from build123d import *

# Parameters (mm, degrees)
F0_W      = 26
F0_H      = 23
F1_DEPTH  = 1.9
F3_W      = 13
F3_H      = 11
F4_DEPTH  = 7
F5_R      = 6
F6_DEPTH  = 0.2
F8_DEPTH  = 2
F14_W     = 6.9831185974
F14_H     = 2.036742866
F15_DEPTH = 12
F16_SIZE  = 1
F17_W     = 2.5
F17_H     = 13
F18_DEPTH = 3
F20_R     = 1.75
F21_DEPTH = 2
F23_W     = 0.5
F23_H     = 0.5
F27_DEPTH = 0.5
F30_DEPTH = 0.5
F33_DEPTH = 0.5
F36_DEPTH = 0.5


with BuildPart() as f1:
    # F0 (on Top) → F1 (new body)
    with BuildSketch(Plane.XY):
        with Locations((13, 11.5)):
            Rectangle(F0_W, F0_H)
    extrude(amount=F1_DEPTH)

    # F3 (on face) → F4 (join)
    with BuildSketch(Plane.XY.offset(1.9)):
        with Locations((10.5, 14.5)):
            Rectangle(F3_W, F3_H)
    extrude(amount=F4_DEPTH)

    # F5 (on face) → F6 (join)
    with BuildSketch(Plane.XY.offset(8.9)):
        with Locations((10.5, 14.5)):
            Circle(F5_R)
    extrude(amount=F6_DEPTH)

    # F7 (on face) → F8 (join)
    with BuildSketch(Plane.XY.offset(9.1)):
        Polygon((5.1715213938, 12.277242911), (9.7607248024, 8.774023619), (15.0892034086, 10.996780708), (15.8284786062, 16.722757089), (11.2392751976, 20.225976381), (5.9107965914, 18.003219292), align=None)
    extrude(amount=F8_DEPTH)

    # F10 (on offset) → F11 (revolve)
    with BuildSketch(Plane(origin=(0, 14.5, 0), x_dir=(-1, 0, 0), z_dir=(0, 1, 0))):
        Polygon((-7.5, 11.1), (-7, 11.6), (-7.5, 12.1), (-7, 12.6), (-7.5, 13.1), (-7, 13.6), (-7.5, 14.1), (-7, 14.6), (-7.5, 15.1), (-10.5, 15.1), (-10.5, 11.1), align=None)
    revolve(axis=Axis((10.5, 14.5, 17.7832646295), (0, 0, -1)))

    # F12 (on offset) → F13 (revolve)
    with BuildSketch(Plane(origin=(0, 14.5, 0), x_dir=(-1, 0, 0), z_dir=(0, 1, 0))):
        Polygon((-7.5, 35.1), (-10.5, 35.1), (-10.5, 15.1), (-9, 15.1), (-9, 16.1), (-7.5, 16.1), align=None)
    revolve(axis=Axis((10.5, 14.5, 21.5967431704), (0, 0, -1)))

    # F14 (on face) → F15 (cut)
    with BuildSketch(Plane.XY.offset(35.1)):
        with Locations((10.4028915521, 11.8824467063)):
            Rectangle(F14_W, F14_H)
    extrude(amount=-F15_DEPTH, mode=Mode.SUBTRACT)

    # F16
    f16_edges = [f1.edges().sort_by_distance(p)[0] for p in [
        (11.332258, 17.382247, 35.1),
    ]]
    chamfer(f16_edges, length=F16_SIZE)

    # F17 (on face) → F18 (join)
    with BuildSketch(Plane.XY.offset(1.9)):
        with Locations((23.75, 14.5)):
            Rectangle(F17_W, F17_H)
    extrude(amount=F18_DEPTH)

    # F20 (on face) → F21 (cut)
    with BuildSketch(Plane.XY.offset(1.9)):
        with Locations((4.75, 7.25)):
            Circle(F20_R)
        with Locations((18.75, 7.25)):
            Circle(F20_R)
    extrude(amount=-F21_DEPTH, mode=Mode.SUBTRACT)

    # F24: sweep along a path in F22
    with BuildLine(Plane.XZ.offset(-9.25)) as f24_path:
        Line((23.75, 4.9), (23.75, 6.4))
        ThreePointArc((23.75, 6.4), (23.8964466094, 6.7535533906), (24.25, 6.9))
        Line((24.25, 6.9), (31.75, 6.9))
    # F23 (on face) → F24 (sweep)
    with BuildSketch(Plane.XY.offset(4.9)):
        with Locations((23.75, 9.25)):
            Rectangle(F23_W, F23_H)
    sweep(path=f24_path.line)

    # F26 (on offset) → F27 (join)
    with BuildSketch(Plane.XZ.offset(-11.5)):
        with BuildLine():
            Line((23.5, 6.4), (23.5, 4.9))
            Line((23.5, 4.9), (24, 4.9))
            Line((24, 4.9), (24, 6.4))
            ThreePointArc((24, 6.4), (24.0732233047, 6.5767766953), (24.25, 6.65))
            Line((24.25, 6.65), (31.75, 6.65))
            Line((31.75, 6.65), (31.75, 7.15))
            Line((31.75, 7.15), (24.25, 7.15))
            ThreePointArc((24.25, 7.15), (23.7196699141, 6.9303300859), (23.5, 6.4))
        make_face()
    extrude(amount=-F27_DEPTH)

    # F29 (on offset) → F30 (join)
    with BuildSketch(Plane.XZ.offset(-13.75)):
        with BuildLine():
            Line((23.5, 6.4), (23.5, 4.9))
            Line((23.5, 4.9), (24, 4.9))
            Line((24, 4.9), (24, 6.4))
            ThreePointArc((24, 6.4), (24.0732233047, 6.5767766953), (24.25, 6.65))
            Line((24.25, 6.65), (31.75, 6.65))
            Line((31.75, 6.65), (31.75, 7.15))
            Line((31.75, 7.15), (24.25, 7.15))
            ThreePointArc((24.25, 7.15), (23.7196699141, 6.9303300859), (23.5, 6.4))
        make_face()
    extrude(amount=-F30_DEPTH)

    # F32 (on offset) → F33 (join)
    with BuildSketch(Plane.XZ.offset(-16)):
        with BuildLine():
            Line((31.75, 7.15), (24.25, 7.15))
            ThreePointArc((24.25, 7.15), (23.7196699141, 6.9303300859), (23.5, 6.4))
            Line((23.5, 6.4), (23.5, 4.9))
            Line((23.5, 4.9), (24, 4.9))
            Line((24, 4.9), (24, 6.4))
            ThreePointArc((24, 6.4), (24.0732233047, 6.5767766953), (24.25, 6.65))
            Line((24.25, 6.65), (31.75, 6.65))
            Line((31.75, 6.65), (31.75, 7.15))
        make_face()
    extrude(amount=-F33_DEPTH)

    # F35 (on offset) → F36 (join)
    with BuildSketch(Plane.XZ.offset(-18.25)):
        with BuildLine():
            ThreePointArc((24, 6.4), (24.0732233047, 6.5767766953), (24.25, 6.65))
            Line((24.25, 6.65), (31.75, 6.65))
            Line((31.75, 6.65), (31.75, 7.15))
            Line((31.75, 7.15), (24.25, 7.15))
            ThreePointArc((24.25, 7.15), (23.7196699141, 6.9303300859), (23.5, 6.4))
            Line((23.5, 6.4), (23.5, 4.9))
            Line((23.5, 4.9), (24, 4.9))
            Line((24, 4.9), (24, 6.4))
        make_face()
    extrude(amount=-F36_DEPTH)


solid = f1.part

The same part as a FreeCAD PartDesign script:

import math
import FreeCAD as App
import Part
import Sketcher
Q = App.Units.Quantity


def edges_at(feature, points):
    """Names of the edges that pass closest to the given points."""
    edges = feature.Shape.Edges
    near = lambda p: min(range(len(edges)), key=lambda i: edges[i].distToShape(Part.Vertex(*p))[0])
    return sorted({f"Edge{near(p) + 1}" for p in points})


def add_polygon(sketch, points):
    """Adds a closed chain of lines whose ends are joined by coincident constraints."""
    first, n = sketch.GeometryCount, len(points)
    for a, b in zip(points, points[1:] + points[:1]):
        sketch.addGeometry(Part.LineSegment(App.Vector(*a, 0), App.Vector(*b, 0)), False)
    for i in range(n):
        sketch.addConstraint(Sketcher.Constraint("Coincident", first + i, 2, first + (i + 1) % n, 1))

doc = App.newDocument("Part")
params = doc.addObject("Spreadsheet::Sheet", "Params")
for row, (alias, value) in enumerate([
    ("sketch1_width", "26 mm"),
    ("sketch1_height", "23 mm"),
    ("pad1_length", "1.9 mm"),
    ("sketch2_width", "13 mm"),
    ("sketch2_height", "11 mm"),
    ("pad2_length", "7 mm"),
    ("sketch3_diameter", "12 mm"),
    ("pad3_length", "0.2 mm"),
    ("pad4_length", "2 mm"),
    ("sketch5_width", "3 mm"),
    ("sketch5_height", "4 mm"),
    ("revolution_angle", "360 deg"),
    ("sketch6_width", "3 mm"),
    ("sketch6_height", "20 mm"),
    ("sketch6_height2", "1 mm"),
    ("revolution2_angle", "360 deg"),
    ("pocket1_length", "12 mm"),
    ("chamfer_size", "1 mm"),
    ("sketch8_height", "13 mm"),
    ("sketch8_width", "2.5 mm"),
    ("pad5_length", "3 mm"),
    ("sketch9_diameter", "3.5 mm"),
    ("pocket2_length", "2 mm"),
    ("sketch10_width", "0.5 mm"),
    ("sketch11_radius", "0.5 mm"),
    ("sketch11_width", "7.5 mm"),
    ("sketch11_height", "1.5 mm"),
    ("sketch12_radius", "0.25 mm"),
    ("sketch12_radius2", "0.75 mm"),
    ("sketch12_width", "7.5 mm"),
    ("sketch12_height", "1.5 mm"),
    ("pad6_length", "0.5 mm"),
    ("sketch13_radius", "0.25 mm"),
    ("sketch13_radius2", "0.75 mm"),
    ("sketch13_width", "7.5 mm"),
    ("sketch13_height", "1.5 mm"),
    ("pad7_length", "0.5 mm"),
    ("sketch14_radius", "0.75 mm"),
    ("sketch14_radius2", "0.25 mm"),
    ("sketch14_width", "7.5 mm"),
    ("sketch14_height", "1.5 mm"),
    ("pad8_length", "0.5 mm"),
    ("sketch15_radius", "0.25 mm"),
    ("sketch15_radius2", "0.75 mm"),
    ("sketch15_width", "7.5 mm"),
    ("sketch15_height", "1.5 mm"),
    ("pad9_length", "0.5 mm"),
], start=1):
    params.set(f"A{row}", alias)
    params.set(f"B{row}", "=" + value)
    params.setAlias(f"B{row}", alias)

body = doc.addObject("PartDesign::Body", "Body")

sketch1 = body.newObject("Sketcher::SketchObject", "Sketch")
sketch1.AttachmentSupport = (doc.getObject("XY_Plane"), [""])
sketch1.MapMode = "FlatFace"
add_polygon(sketch1, [(0, 23), (0, 0), (26, 0), (26, 23)])
sketch1.addConstraint([
    Sketcher.Constraint("Vertical", 0),
    Sketcher.Constraint("Horizontal", 1),
    Sketcher.Constraint("Vertical", 2),
    Sketcher.Constraint("Horizontal", 3),
    Sketcher.Constraint("Coincident", 0, 2, -1, 1),
    Sketcher.Constraint("DistanceX", 1, 1, 1, 2, Q("26 mm")),
    Sketcher.Constraint("DistanceY", 0, 2, 0, 1, Q("23 mm")),
])
sketch1.setExpression("Constraints[9]", "Params.sketch1_width")
sketch1.setExpression("Constraints[10]", "Params.sketch1_height")
pad1 = body.newObject("PartDesign::Pad", "Pad")
pad1.Profile = sketch1
pad1.setExpression("Length", "Params.pad1_length")

sketch2 = body.newObject("Sketcher::SketchObject", "Sketch001")
sketch2.AttachmentSupport = (doc.getObject("XY_Plane"), [""])
sketch2.MapMode = "FlatFace"
sketch2.AttachmentOffset = App.Placement(App.Vector(0, 0, 1.9), App.Rotation())
add_polygon(sketch2, [(4, 20), (4, 9), (17, 9), (17, 20)])
sketch2.addConstraint([
    Sketcher.Constraint("Vertical", 0),
    Sketcher.Constraint("Horizontal", 1),
    Sketcher.Constraint("Vertical", 2),
    Sketcher.Constraint("Horizontal", 3),
    Sketcher.Constraint("DistanceX", 1, 1, 1, 2, Q("13 mm")),
    Sketcher.Constraint("DistanceY", 0, 2, 0, 1, Q("11 mm")),
    Sketcher.Constraint("DistanceX", -1, 1, 0, 2, Q("4 mm")),
    Sketcher.Constraint("DistanceY", -1, 1, 0, 2, Q("9 mm")),
])
sketch2.setExpression("Constraints[8]", "Params.sketch2_width")
sketch2.setExpression("Constraints[9]", "Params.sketch2_height")
pad2 = body.newObject("PartDesign::Pad", "Pad001")
pad2.Profile = sketch2
pad2.setExpression("Length", "Params.pad2_length")

sketch3 = body.newObject("Sketcher::SketchObject", "Sketch002")
sketch3.AttachmentSupport = (doc.getObject("XY_Plane"), [""])
sketch3.MapMode = "FlatFace"
sketch3.AttachmentOffset = App.Placement(App.Vector(0, 0, 8.9), App.Rotation())
sketch3.addGeometry(Part.Circle(App.Vector(10, 14, 0), App.Vector(0, 0, 1), 6), False)
sketch3.addConstraint([
    Sketcher.Constraint("Diameter", 0, Q("12 mm")),
    Sketcher.Constraint("DistanceX", -1, 1, 0, 3, Q("10.5 mm")),
    Sketcher.Constraint("DistanceY", -1, 1, 0, 3, Q("14.5 mm")),
])
sketch3.setExpression("Constraints[0]", "Params.sketch3_diameter")
pad3 = body.newObject("PartDesign::Pad", "Pad002")
pad3.Profile = sketch3
pad3.setExpression("Length", "Params.pad3_length")

sketch4 = body.newObject("Sketcher::SketchObject", "Sketch003")
sketch4.AttachmentSupport = (doc.getObject("XY_Plane"), [""])
sketch4.MapMode = "FlatFace"
sketch4.AttachmentOffset = App.Placement(App.Vector(0, 0, 9.1), App.Rotation())
add_polygon(sketch4, [(5, 12), (10, 9), (15, 11), (16, 17), (11, 20), (6, 18)])
sketch4.addConstraint([
    Sketcher.Constraint("Parallel", 0, 3),
    Sketcher.Constraint("Parallel", 1, 4),
    Sketcher.Constraint("Parallel", 2, 5),
    Sketcher.Constraint("Equal", 0, 1),
    Sketcher.Constraint("Equal", 1, 2),
    Sketcher.Constraint("Equal", 2, 3),
    Sketcher.Constraint("DistanceY", -1, 1, 1, 2, Q("10.996781 mm")),
    Sketcher.Constraint("DistanceX", -1, 1, 2, 2, Q("15.828479 mm")),
    Sketcher.Constraint("DistanceY", -1, 1, 4, 2, Q("18.003219 mm")),
    Sketcher.Constraint("DistanceX", -1, 1, 5, 2, Q("5.171521 mm")),
    Sketcher.Constraint("DistanceX", 0, 2, 1, 2, Q("5.328479 mm")),
    Sketcher.Constraint("DistanceY", 2, 2, 3, 2, Q("3.503219 mm")),
])
pad4 = body.newObject("PartDesign::Pad", "Pad003")
pad4.Profile = sketch4
pad4.setExpression("Length", "Params.pad4_length")

sketch5 = body.newObject("Sketcher::SketchObject", "Sketch004")
sketch5.AttachmentSupport = (doc.getObject("XZ_Plane"), [""])
sketch5.MapMode = "FlatFace"
sketch5.AttachmentOffset = App.Placement(App.Vector(0, 0, -14.5), App.Rotation())
add_polygon(sketch5, [(7.5, 11.1), (7, 11.6), (7.5, 12.1), (7, 12.6), (7.5, 13.1), (7, 13.6), (7.5, 14.1), (7, 14.6), (7.5, 15.1), (10.5, 15.1), (10.5, 11.1)])
sketch5.addGeometry(Part.LineSegment(App.Vector(10.5, 15.1, 0), App.Vector(10.5, 11.1, 0)), True)
sketch5.addConstraint([
    Sketcher.Constraint("Horizontal", 8),
    Sketcher.Constraint("Vertical", 9),
    Sketcher.Constraint("Horizontal", 10),
    Sketcher.Constraint("Vertical", 11),
    Sketcher.Constraint("Coincident", 11, 1, 8, 2),
    Sketcher.Constraint("Perpendicular", 0, 1),
    Sketcher.Constraint("Perpendicular", 1, 2),
    Sketcher.Constraint("Perpendicular", 2, 3),
    Sketcher.Constraint("Perpendicular", 3, 4),
    Sketcher.Constraint("Perpendicular", 4, 5),
    Sketcher.Constraint("Perpendicular", 5, 6),
    Sketcher.Constraint("Perpendicular", 6, 7),
    Sketcher.Constraint("Horizontal", 10, 2, 11, 2),
    Sketcher.Constraint("Vertical", 0, 2, 2, 2),
    Sketcher.Constraint("Vertical", 1, 2, 3, 2),
    Sketcher.Constraint("Vertical", 2, 2, 4, 2),
    Sketcher.Constraint("Vertical", 3, 2, 5, 2),
    Sketcher.Constraint("Vertical", 4, 2, 6, 2),
    Sketcher.Constraint("Vertical", 5, 2, 7, 2),
    Sketcher.Constraint("Vertical", 7, 2, 10, 2),
    Sketcher.Constraint("Equal", 0, 1),
    Sketcher.Constraint("DistanceX", 8, 1, 8, 2, Q("3 mm")),
    Sketcher.Constraint("DistanceY", 9, 2, 9, 1, Q("4 mm")),
    Sketcher.Constraint("DistanceX", -1, 1, 0, 2, Q("7 mm")),
    Sketcher.Constraint("DistanceY", -1, 1, 0, 2, Q("11.6 mm")),
])
sketch5.setExpression("Constraints[32]", "Params.sketch5_width")
sketch5.setExpression("Constraints[33]", "Params.sketch5_height")
revolution = body.newObject("PartDesign::Revolution", "Revolution")
revolution.Profile = sketch5
revolution.ReferenceAxis = (sketch5, ["Axis0"])
revolution.setExpression("Angle", "Params.revolution_angle")

sketch6 = body.newObject("Sketcher::SketchObject", "Sketch005")
sketch6.AttachmentSupport = (doc.getObject("XZ_Plane"), [""])
sketch6.MapMode = "FlatFace"
sketch6.AttachmentOffset = App.Placement(App.Vector(0, 0, -14.5), App.Rotation())
add_polygon(sketch6, [(7.5, 35.1), (10.5, 35.1), (10.5, 15.1), (9, 15.1), (9, 16.1), (7.5, 16.1)])
sketch6.addGeometry(Part.LineSegment(App.Vector(10.5, 35.1, 0), App.Vector(10.5, 15.1, 0)), True)
sketch6.addConstraint([
    Sketcher.Constraint("Horizontal", 0),
    Sketcher.Constraint("Vertical", 1),
    Sketcher.Constraint("Horizontal", 2),
    Sketcher.Constraint("Vertical", 3),
    Sketcher.Constraint("Horizontal", 4),
    Sketcher.Constraint("Vertical", 5),
    Sketcher.Constraint("Vertical", 6),
    Sketcher.Constraint("Coincident", 6, 1, 0, 2),
    Sketcher.Constraint("Horizontal", 2, 2, 6, 2),
    Sketcher.Constraint("Equal", 2, 4),
    Sketcher.Constraint("DistanceX", 0, 1, 0, 2, Q("3 mm")),
    Sketcher.Constraint("DistanceY", 1, 2, 1, 1, Q("20 mm")),
    Sketcher.Constraint("DistanceY", 3, 1, 3, 2, Q("1 mm")),
    Sketcher.Constraint("DistanceX", -1, 1, 2, 2, Q("9 mm")),
    Sketcher.Constraint("DistanceY", -1, 1, 0, 2, Q("35.1 mm")),
])
sketch6.setExpression("Constraints[16]", "Params.sketch6_width")
sketch6.setExpression("Constraints[17]", "Params.sketch6_height")
sketch6.setExpression("Constraints[18]", "Params.sketch6_height2")
revolution2 = body.newObject("PartDesign::Revolution", "Revolution001")
revolution2.Profile = sketch6
revolution2.ReferenceAxis = (sketch6, ["Axis0"])
revolution2.setExpression("Angle", "Params.revolution2_angle")

sketch7 = body.newObject("Sketcher::SketchObject", "Sketch006")
sketch7.AttachmentSupport = (doc.getObject("XY_Plane"), [""])
sketch7.MapMode = "FlatFace"
sketch7.AttachmentOffset = App.Placement(App.Vector(0, 0, 35.1), App.Rotation())
add_polygon(sketch7, [(6.9, 12.9), (6.9, 10.9), (13.9, 10.9), (13.9, 12.9)])
sketch7.addConstraint([
    Sketcher.Constraint("Vertical", 0),
    Sketcher.Constraint("Horizontal", 1),
    Sketcher.Constraint("Vertical", 2),
    Sketcher.Constraint("Horizontal", 3),
    Sketcher.Constraint("DistanceX", 1, 1, 1, 2, Q("6.983119 mm")),
    Sketcher.Constraint("DistanceY", 0, 2, 0, 1, Q("2.036743 mm")),
    Sketcher.Constraint("DistanceX", -1, 1, 1, 2, Q("13.894451 mm")),
    Sketcher.Constraint("DistanceY", -1, 1, 2, 2, Q("12.900818 mm")),
])
pocket1 = body.newObject("PartDesign::Pocket", "Pocket")
pocket1.Profile = sketch7
pocket1.setExpression("Length", "Params.pocket1_length")
doc.recompute()

chamfer = body.newObject("PartDesign::Chamfer", "Chamfer")
chamfer.Base = (pocket1, edges_at(pocket1, [(11.332, 17.382, 35.1)]))
chamfer.setExpression("Size", "Params.chamfer_size")

sketch8 = body.newObject("Sketcher::SketchObject", "Sketch007")
sketch8.AttachmentSupport = (doc.getObject("XY_Plane"), [""])
sketch8.MapMode = "FlatFace"
sketch8.AttachmentOffset = App.Placement(App.Vector(0, 0, 1.9), App.Rotation())
add_polygon(sketch8, [(22.5, 21), (22.5, 8), (25, 8), (25, 21)])
sketch8.addConstraint([
    Sketcher.Constraint("Vertical", 0),
    Sketcher.Constraint("Horizontal", 1),
    Sketcher.Constraint("Vertical", 2),
    Sketcher.Constraint("Horizontal", 3),
    Sketcher.Constraint("DistanceY", 0, 2, 0, 1, Q("13 mm")),
    Sketcher.Constraint("DistanceX", 1, 1, 1, 2, Q("2.5 mm")),
    Sketcher.Constraint("DistanceY", -1, 1, 0, 2, Q("8 mm")),
    Sketcher.Constraint("DistanceX", -1, 1, 1, 2, Q("25 mm")),
])
sketch8.setExpression("Constraints[8]", "Params.sketch8_height")
sketch8.setExpression("Constraints[9]", "Params.sketch8_width")
pad5 = body.newObject("PartDesign::Pad", "Pad004")
pad5.Profile = sketch8
pad5.setExpression("Length", "Params.pad5_length")

sketch9 = body.newObject("Sketcher::SketchObject", "Sketch008")
sketch9.AttachmentSupport = (doc.getObject("XY_Plane"), [""])
sketch9.MapMode = "FlatFace"
sketch9.AttachmentOffset = App.Placement(App.Vector(0, 0, 1.9), App.Rotation())
sketch9.addGeometry([
    Part.Circle(App.Vector(4.8, 7.2, 0), App.Vector(0, 0, 1), 1.8),
    Part.Circle(App.Vector(18.8, 7.2, 0), App.Vector(0, 0, 1), 1.8),
], False)
sketch9.addConstraint([
    Sketcher.Constraint("Equal", 0, 1),
    Sketcher.Constraint("Horizontal", 0, 3, 1, 3),
    Sketcher.Constraint("Diameter", 0, Q("3.5 mm")),
    Sketcher.Constraint("DistanceX", 0, 3, 1, 3, Q("14 mm")),
    Sketcher.Constraint("DistanceX", -1, 1, 0, 3, Q("4.75 mm")),
    Sketcher.Constraint("DistanceY", -1, 1, 0, 3, Q("7.25 mm")),
])
sketch9.setExpression("Constraints[2]", "Params.sketch9_diameter")
pocket2 = body.newObject("PartDesign::Pocket", "Pocket001")
pocket2.Profile = sketch9
pocket2.setExpression("Length", "Params.pocket2_length")

sketch10 = body.newObject("Sketcher::SketchObject", "Sketch009")
sketch10.AttachmentSupport = (doc.getObject("XY_Plane"), [""])
sketch10.MapMode = "FlatFace"
sketch10.AttachmentOffset = App.Placement(App.Vector(0, 0, 4.9), App.Rotation())
add_polygon(sketch10, [(23.5, 9.5), (23.5, 9), (24, 9), (24, 9.5)])
sketch10.addConstraint([
    Sketcher.Constraint("Vertical", 0),
    Sketcher.Constraint("Horizontal", 1),
    Sketcher.Constraint("Vertical", 2),
    Sketcher.Constraint("Horizontal", 3),
    Sketcher.Constraint("Equal", 3, 0),
    Sketcher.Constraint("DistanceX", 1, 1, 1, 2, Q("0.5 mm")),
    Sketcher.Constraint("DistanceY", -1, 1, 0, 2, Q("9 mm")),
    Sketcher.Constraint("DistanceX", -1, 1, 1, 2, Q("24 mm")),
])
sketch10.setExpression("Constraints[9]", "Params.sketch10_width")

sketch11 = body.newObject("Sketcher::SketchObject", "Sketch010")
sketch11.AttachmentSupport = (doc.getObject("XZ_Plane"), [""])
sketch11.MapMode = "FlatFace"
sketch11.AttachmentOffset = App.Placement(App.Vector(0, 0, -9.25), App.Rotation())
sketch11.addGeometry([
    Part.LineSegment(App.Vector(23.8, 4.9, 0), App.Vector(23.8, 6.4, 0)),
    Part.ArcOfCircle(Part.Circle(App.Vector(24.2, 6.4, 0), App.Vector(0, 0, 1), 0.5), math.radians(90), math.radians(180)),
    Part.LineSegment(App.Vector(24.2, 6.9, 0), App.Vector(31.8, 6.9, 0)),
], False)
sketch11.addConstraint([
    Sketcher.Constraint("Tangent", 0, 2, 1, 2),
    Sketcher.Constraint("Tangent", 1, 1, 2, 1),
    Sketcher.Constraint("Vertical", 0),
    Sketcher.Constraint("Horizontal", 2),
    Sketcher.Constraint("Radius", 1, Q("0.5 mm")),
    Sketcher.Constraint("DistanceX", 2, 1, 2, 2, Q("7.5 mm")),
    Sketcher.Constraint("DistanceY", 0, 1, 0, 2, Q("1.5 mm")),
    Sketcher.Constraint("DistanceY", -1, 1, 1, 3, Q("6.4 mm")),
    Sketcher.Constraint("DistanceX", -1, 1, 1, 3, Q("24.25 mm")),
])
sketch11.setExpression("Constraints[4]", "Params.sketch11_radius")
sketch11.setExpression("Constraints[5]", "Params.sketch11_width")
sketch11.setExpression("Constraints[6]", "Params.sketch11_height")
doc.recompute()

additivepipe = body.newObject("PartDesign::AdditivePipe", "AdditivePipe")
additivepipe.Profile = sketch10
additivepipe.Spine = (sketch11, ["Edge1", "Edge2", "Edge3"])

sketch12 = body.newObject("Sketcher::SketchObject", "Sketch011")
sketch12.AttachmentSupport = (doc.getObject("XZ_Plane"), [""])
sketch12.MapMode = "FlatFace"
sketch12.AttachmentOffset = App.Placement(App.Vector(0, 0, -11.5), App.Rotation())
sketch12.addGeometry([
    Part.LineSegment(App.Vector(23.5, 6.4, 0), App.Vector(23.5, 4.9, 0)),
    Part.LineSegment(App.Vector(23.5, 4.9, 0), App.Vector(24, 4.9, 0)),
    Part.LineSegment(App.Vector(24, 4.9, 0), App.Vector(24, 6.4, 0)),
    Part.ArcOfCircle(Part.Circle(App.Vector(24.25, 6.4, 0), App.Vector(0, 0, 1), 0.25), math.radians(90), math.radians(180)),
    Part.LineSegment(App.Vector(24.25, 6.65, 0), App.Vector(31.75, 6.65, 0)),
    Part.LineSegment(App.Vector(31.75, 6.65, 0), App.Vector(31.75, 7.15, 0)),
    Part.LineSegment(App.Vector(31.75, 7.15, 0), App.Vector(24.25, 7.15, 0)),
    Part.ArcOfCircle(Part.Circle(App.Vector(24.25, 6.4, 0), App.Vector(0, 0, 1), 0.75), math.radians(90), math.radians(180)),
], False)
sketch12.addConstraint([
    Sketcher.Constraint("Coincident", 0, 2, 1, 1),
    Sketcher.Constraint("Coincident", 1, 2, 2, 1),
    Sketcher.Constraint("Tangent", 2, 2, 3, 2),
    Sketcher.Constraint("Tangent", 3, 1, 4, 1),
    Sketcher.Constraint("Coincident", 4, 2, 5, 1),
    Sketcher.Constraint("Coincident", 5, 2, 6, 1),
    Sketcher.Constraint("Tangent", 6, 2, 7, 1),
    Sketcher.Constraint("Tangent", 7, 2, 0, 1),
    Sketcher.Constraint("Vertical", 0),
    Sketcher.Constraint("Horizontal", 1),
    Sketcher.Constraint("Vertical", 2),
    Sketcher.Constraint("Horizontal", 4),
    Sketcher.Constraint("Vertical", 5),
    Sketcher.Constraint("Horizontal", 6),
    Sketcher.Constraint("Coincident", 7, 3, 3, 3),
    Sketcher.Constraint("Radius", 3, Q("0.25 mm")),
    Sketcher.Constraint("Radius", 7, Q("0.75 mm")),
    Sketcher.Constraint("DistanceX", 4, 1, 4, 2, Q("7.5 mm")),
    Sketcher.Constraint("DistanceY", 0, 2, 0, 1, Q("1.5 mm")),
    Sketcher.Constraint("DistanceX", -1, 1, 1, 2, Q("24 mm")),
    Sketcher.Constraint("DistanceY", -1, 1, 3, 3, Q("6.4 mm")),
])
sketch12.setExpression("Constraints[15]", "Params.sketch12_radius")
sketch12.setExpression("Constraints[16]", "Params.sketch12_radius2")
sketch12.setExpression("Constraints[17]", "Params.sketch12_width")
sketch12.setExpression("Constraints[18]", "Params.sketch12_height")
pad6 = body.newObject("PartDesign::Pad", "Pad005")
pad6.Profile = sketch12
pad6.setExpression("Length", "Params.pad6_length")
pad6.Reversed = True

sketch13 = body.newObject("Sketcher::SketchObject", "Sketch012")
sketch13.AttachmentSupport = (doc.getObject("XZ_Plane"), [""])
sketch13.MapMode = "FlatFace"
sketch13.AttachmentOffset = App.Placement(App.Vector(0, 0, -13.75), App.Rotation())
sketch13.addGeometry([
    Part.LineSegment(App.Vector(23.5, 6.4, 0), App.Vector(23.5, 4.9, 0)),
    Part.LineSegment(App.Vector(23.5, 4.9, 0), App.Vector(24, 4.9, 0)),
    Part.LineSegment(App.Vector(24, 4.9, 0), App.Vector(24, 6.4, 0)),
    Part.ArcOfCircle(Part.Circle(App.Vector(24.25, 6.4, 0), App.Vector(0, 0, 1), 0.25), math.radians(90), math.radians(180)),
    Part.LineSegment(App.Vector(24.25, 6.65, 0), App.Vector(31.75, 6.65, 0)),
    Part.LineSegment(App.Vector(31.75, 6.65, 0), App.Vector(31.75, 7.15, 0)),
    Part.LineSegment(App.Vector(31.75, 7.15, 0), App.Vector(24.25, 7.15, 0)),
    Part.ArcOfCircle(Part.Circle(App.Vector(24.25, 6.4, 0), App.Vector(0, 0, 1), 0.75), math.radians(90), math.radians(180)),
], False)
sketch13.addConstraint([
    Sketcher.Constraint("Coincident", 0, 2, 1, 1),
    Sketcher.Constraint("Coincident", 1, 2, 2, 1),
    Sketcher.Constraint("Tangent", 2, 2, 3, 2),
    Sketcher.Constraint("Tangent", 3, 1, 4, 1),
    Sketcher.Constraint("Coincident", 4, 2, 5, 1),
    Sketcher.Constraint("Coincident", 5, 2, 6, 1),
    Sketcher.Constraint("Tangent", 6, 2, 7, 1),
    Sketcher.Constraint("Tangent", 7, 2, 0, 1),
    Sketcher.Constraint("Vertical", 0),
    Sketcher.Constraint("Horizontal", 1),
    Sketcher.Constraint("Vertical", 2),
    Sketcher.Constraint("Horizontal", 4),
    Sketcher.Constraint("Vertical", 5),
    Sketcher.Constraint("Horizontal", 6),
    Sketcher.Constraint("Coincident", 7, 3, 3, 3),
    Sketcher.Constraint("Radius", 3, Q("0.25 mm")),
    Sketcher.Constraint("Radius", 7, Q("0.75 mm")),
    Sketcher.Constraint("DistanceX", 4, 1, 4, 2, Q("7.5 mm")),
    Sketcher.Constraint("DistanceY", 0, 2, 0, 1, Q("1.5 mm")),
    Sketcher.Constraint("DistanceX", -1, 1, 1, 2, Q("24 mm")),
    Sketcher.Constraint("DistanceY", -1, 1, 3, 3, Q("6.4 mm")),
])
sketch13.setExpression("Constraints[15]", "Params.sketch13_radius")
sketch13.setExpression("Constraints[16]", "Params.sketch13_radius2")
sketch13.setExpression("Constraints[17]", "Params.sketch13_width")
sketch13.setExpression("Constraints[18]", "Params.sketch13_height")
pad7 = body.newObject("PartDesign::Pad", "Pad006")
pad7.Profile = sketch13
pad7.setExpression("Length", "Params.pad7_length")
pad7.Reversed = True

sketch14 = body.newObject("Sketcher::SketchObject", "Sketch013")
sketch14.AttachmentSupport = (doc.getObject("XZ_Plane"), [""])
sketch14.MapMode = "FlatFace"
sketch14.AttachmentOffset = App.Placement(App.Vector(0, 0, -16), App.Rotation())
sketch14.addGeometry([
    Part.LineSegment(App.Vector(31.75, 7.15, 0), App.Vector(24.25, 7.15, 0)),
    Part.ArcOfCircle(Part.Circle(App.Vector(24.25, 6.4, 0), App.Vector(0, 0, 1), 0.75), math.radians(90), math.radians(180)),
    Part.LineSegment(App.Vector(23.5, 6.4, 0), App.Vector(23.5, 4.9, 0)),
    Part.LineSegment(App.Vector(23.5, 4.9, 0), App.Vector(24, 4.9, 0)),
    Part.LineSegment(App.Vector(24, 4.9, 0), App.Vector(24, 6.4, 0)),
    Part.ArcOfCircle(Part.Circle(App.Vector(24.25, 6.4, 0), App.Vector(0, 0, 1), 0.25), math.radians(90), math.radians(180)),
    Part.LineSegment(App.Vector(24.25, 6.65, 0), App.Vector(31.75, 6.65, 0)),
    Part.LineSegment(App.Vector(31.75, 6.65, 0), App.Vector(31.75, 7.15, 0)),
], False)
sketch14.addConstraint([
    Sketcher.Constraint("Tangent", 0, 2, 1, 1),
    Sketcher.Constraint("Tangent", 1, 2, 2, 1),
    Sketcher.Constraint("Coincident", 2, 2, 3, 1),
    Sketcher.Constraint("Coincident", 3, 2, 4, 1),
    Sketcher.Constraint("Tangent", 4, 2, 5, 2),
    Sketcher.Constraint("Tangent", 5, 1, 6, 1),
    Sketcher.Constraint("Coincident", 6, 2, 7, 1),
    Sketcher.Constraint("Coincident", 7, 2, 0, 1),
    Sketcher.Constraint("Horizontal", 0),
    Sketcher.Constraint("Vertical", 2),
    Sketcher.Constraint("Horizontal", 3),
    Sketcher.Constraint("Vertical", 4),
    Sketcher.Constraint("Horizontal", 6),
    Sketcher.Constraint("Vertical", 7),
    Sketcher.Constraint("Coincident", 5, 3, 1, 3),
    Sketcher.Constraint("Radius", 1, Q("0.75 mm")),
    Sketcher.Constraint("Radius", 5, Q("0.25 mm")),
    Sketcher.Constraint("DistanceX", 0, 2, 0, 1, Q("7.5 mm")),
    Sketcher.Constraint("DistanceY", 2, 2, 2, 1, Q("1.5 mm")),
    Sketcher.Constraint("DistanceX", -1, 1, 3, 2, Q("24 mm")),
    Sketcher.Constraint("DistanceY", -1, 1, 1, 3, Q("6.4 mm")),
])
sketch14.setExpression("Constraints[15]", "Params.sketch14_radius")
sketch14.setExpression("Constraints[16]", "Params.sketch14_radius2")
sketch14.setExpression("Constraints[17]", "Params.sketch14_width")
sketch14.setExpression("Constraints[18]", "Params.sketch14_height")
pad8 = body.newObject("PartDesign::Pad", "Pad007")
pad8.Profile = sketch14
pad8.setExpression("Length", "Params.pad8_length")
pad8.Reversed = True

sketch15 = body.newObject("Sketcher::SketchObject", "Sketch014")
sketch15.AttachmentSupport = (doc.getObject("XZ_Plane"), [""])
sketch15.MapMode = "FlatFace"
sketch15.AttachmentOffset = App.Placement(App.Vector(0, 0, -18.25), App.Rotation())
sketch15.addGeometry([
    Part.ArcOfCircle(Part.Circle(App.Vector(24.25, 6.4, 0), App.Vector(0, 0, 1), 0.25), math.radians(90), math.radians(180)),
    Part.LineSegment(App.Vector(24.25, 6.65, 0), App.Vector(31.75, 6.65, 0)),
    Part.LineSegment(App.Vector(31.75, 6.65, 0), App.Vector(31.75, 7.15, 0)),
    Part.LineSegment(App.Vector(31.75, 7.15, 0), App.Vector(24.25, 7.15, 0)),
    Part.ArcOfCircle(Part.Circle(App.Vector(24.25, 6.4, 0), App.Vector(0, 0, 1), 0.75), math.radians(90), math.radians(180)),
    Part.LineSegment(App.Vector(23.5, 6.4, 0), App.Vector(23.5, 4.9, 0)),
    Part.LineSegment(App.Vector(23.5, 4.9, 0), App.Vector(24, 4.9, 0)),
    Part.LineSegment(App.Vector(24, 4.9, 0), App.Vector(24, 6.4, 0)),
], False)
sketch15.addConstraint([
    Sketcher.Constraint("Tangent", 0, 1, 1, 1),
    Sketcher.Constraint("Coincident", 1, 2, 2, 1),
    Sketcher.Constraint("Coincident", 2, 2, 3, 1),
    Sketcher.Constraint("Tangent", 3, 2, 4, 1),
    Sketcher.Constraint("Tangent", 4, 2, 5, 1),
    Sketcher.Constraint("Coincident", 5, 2, 6, 1),
    Sketcher.Constraint("Coincident", 6, 2, 7, 1),
    Sketcher.Constraint("Tangent", 7, 2, 0, 2),
    Sketcher.Constraint("Horizontal", 1),
    Sketcher.Constraint("Vertical", 2),
    Sketcher.Constraint("Horizontal", 3),
    Sketcher.Constraint("Vertical", 5),
    Sketcher.Constraint("Horizontal", 6),
    Sketcher.Constraint("Vertical", 7),
    Sketcher.Constraint("Coincident", 4, 3, 0, 3),
    Sketcher.Constraint("Radius", 0, Q("0.25 mm")),
    Sketcher.Constraint("Radius", 4, Q("0.75 mm")),
    Sketcher.Constraint("DistanceX", 1, 1, 1, 2, Q("7.5 mm")),
    Sketcher.Constraint("DistanceY", 5, 2, 5, 1, Q("1.5 mm")),
    Sketcher.Constraint("DistanceX", -1, 1, 6, 2, Q("24 mm")),
    Sketcher.Constraint("DistanceY", -1, 1, 0, 3, Q("6.4 mm")),
])
sketch15.setExpression("Constraints[15]", "Params.sketch15_radius")
sketch15.setExpression("Constraints[16]", "Params.sketch15_radius2")
sketch15.setExpression("Constraints[17]", "Params.sketch15_width")
sketch15.setExpression("Constraints[18]", "Params.sketch15_height")
pad9 = body.newObject("PartDesign::Pad", "Pad008")
pad9.Profile = sketch15
pad9.setExpression("Length", "Params.pad9_length")
pad9.Reversed = True

doc.recompute()
